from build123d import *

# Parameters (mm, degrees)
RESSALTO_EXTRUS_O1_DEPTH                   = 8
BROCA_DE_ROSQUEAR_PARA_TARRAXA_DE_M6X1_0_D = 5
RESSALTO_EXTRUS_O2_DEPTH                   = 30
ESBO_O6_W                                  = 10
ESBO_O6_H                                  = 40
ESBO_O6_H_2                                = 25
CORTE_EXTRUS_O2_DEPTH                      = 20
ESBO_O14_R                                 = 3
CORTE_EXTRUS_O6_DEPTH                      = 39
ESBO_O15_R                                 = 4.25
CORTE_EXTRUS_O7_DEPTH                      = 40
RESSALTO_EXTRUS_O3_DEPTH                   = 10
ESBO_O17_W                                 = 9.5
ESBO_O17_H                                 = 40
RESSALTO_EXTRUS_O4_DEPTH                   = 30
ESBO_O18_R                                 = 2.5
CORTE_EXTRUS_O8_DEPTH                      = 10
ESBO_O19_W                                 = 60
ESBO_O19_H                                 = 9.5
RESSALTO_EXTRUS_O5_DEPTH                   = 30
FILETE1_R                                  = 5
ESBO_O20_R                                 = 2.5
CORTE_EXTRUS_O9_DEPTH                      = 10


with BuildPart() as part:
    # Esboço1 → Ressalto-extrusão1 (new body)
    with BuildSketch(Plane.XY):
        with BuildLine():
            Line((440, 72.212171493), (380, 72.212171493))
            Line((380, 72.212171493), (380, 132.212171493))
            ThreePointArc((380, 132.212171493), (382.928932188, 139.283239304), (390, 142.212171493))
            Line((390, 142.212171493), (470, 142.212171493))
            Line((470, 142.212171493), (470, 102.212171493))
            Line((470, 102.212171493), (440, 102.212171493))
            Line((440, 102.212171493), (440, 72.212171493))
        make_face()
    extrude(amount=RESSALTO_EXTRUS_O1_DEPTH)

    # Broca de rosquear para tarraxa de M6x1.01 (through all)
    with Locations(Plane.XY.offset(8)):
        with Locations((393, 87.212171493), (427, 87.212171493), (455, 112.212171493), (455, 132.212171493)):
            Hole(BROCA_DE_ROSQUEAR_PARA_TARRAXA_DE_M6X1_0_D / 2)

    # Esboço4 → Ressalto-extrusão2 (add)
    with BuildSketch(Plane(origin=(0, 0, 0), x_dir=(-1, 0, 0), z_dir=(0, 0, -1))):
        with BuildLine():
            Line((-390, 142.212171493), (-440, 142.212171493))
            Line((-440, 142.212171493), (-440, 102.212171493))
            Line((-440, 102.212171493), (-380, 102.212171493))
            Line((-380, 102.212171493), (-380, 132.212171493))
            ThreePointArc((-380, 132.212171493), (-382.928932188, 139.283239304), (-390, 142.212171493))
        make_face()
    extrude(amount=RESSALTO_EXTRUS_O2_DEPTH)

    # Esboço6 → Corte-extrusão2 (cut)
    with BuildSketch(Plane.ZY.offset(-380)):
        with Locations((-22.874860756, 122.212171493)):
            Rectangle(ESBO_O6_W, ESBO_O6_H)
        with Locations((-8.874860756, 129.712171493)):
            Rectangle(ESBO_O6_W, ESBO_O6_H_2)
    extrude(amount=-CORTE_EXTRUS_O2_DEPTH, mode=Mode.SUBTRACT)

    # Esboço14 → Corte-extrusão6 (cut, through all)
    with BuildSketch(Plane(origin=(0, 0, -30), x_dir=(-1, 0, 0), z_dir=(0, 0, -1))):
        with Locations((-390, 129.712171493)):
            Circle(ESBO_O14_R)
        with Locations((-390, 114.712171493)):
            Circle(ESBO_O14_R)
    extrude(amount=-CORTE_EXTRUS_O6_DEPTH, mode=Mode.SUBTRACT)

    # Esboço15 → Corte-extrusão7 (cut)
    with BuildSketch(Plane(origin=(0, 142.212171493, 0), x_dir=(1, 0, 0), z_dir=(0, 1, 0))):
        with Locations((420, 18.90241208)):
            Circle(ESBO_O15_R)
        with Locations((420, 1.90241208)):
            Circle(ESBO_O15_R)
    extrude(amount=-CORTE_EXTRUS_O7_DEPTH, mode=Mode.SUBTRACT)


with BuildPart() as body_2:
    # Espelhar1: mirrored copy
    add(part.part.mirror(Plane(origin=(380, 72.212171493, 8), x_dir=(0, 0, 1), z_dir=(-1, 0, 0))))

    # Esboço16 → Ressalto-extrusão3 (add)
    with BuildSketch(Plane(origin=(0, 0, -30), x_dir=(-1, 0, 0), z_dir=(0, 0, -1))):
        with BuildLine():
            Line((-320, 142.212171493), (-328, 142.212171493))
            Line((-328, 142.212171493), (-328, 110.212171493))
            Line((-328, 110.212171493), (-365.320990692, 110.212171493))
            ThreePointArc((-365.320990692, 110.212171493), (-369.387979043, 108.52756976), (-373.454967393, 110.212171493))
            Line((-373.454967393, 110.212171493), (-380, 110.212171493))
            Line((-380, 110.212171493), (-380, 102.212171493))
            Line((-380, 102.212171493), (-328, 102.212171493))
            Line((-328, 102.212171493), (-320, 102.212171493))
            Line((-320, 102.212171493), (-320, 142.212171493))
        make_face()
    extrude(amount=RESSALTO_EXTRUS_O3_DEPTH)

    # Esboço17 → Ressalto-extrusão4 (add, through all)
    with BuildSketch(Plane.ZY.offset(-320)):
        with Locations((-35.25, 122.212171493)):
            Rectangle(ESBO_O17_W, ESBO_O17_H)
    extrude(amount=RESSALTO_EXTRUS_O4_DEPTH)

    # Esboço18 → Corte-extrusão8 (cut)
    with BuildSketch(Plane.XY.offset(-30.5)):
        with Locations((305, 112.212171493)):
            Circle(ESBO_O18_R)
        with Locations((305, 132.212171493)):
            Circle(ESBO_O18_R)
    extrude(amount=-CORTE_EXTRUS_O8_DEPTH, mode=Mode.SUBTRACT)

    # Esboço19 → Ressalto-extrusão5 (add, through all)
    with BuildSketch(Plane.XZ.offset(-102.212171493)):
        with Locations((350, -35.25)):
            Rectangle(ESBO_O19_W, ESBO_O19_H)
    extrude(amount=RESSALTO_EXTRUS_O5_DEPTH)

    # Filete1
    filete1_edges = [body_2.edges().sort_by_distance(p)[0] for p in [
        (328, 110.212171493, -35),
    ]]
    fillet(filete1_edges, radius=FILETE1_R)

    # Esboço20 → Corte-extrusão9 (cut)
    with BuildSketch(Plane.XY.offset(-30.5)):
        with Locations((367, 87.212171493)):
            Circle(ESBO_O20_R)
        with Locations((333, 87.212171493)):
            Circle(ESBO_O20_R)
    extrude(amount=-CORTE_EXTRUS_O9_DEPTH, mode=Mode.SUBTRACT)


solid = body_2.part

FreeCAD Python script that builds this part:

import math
import FreeCAD as App
import Part
import Sketcher
Q = App.Units.Quantity


def edges_at(feature, points):
    """Names of the edges that pass closest to the given points."""
    edges = feature.Shape.Edges
    near = lambda p: min(range(len(edges)), key=lambda i: edges[i].distToShape(Part.Vertex(*p))[0])
    return sorted({f"Edge{near(p) + 1}" for p in points})


def add_polygon(sketch, points):
    """Adds a closed chain of lines whose ends are joined by coincident constraints."""
    first, n = sketch.GeometryCount, len(points)
    for a, b in zip(points, points[1:] + points[:1]):
        sketch.addGeometry(Part.LineSegment(App.Vector(*a, 0), App.Vector(*b, 0)), False)
    for i in range(n):
        sketch.addConstraint(Sketcher.Constraint("Coincident", first + i, 2, first + (i + 1) % n, 1))

doc = App.newDocument("Part")
body = doc.addObject("PartDesign::Body", "Body")

# Sketch on XY plane
sketch1 = doc.addObject("Sketcher::SketchObject", "Sketch")
body.addObject(sketch1)
sketch1.AttachmentSupport = (doc.XY_Plane, [""])
sketch1.MapMode = "FlatFace"
sketch1.addGeometry([
    Part.LineSegment(App.Vector(380, 72, 0), App.Vector(440, 72, 0)),  # 0
    Part.LineSegment(App.Vector(440, 72, 0), App.Vector(440, 102, 0)),  # 1
    Part.LineSegment(App.Vector(440, 102, 0), App.Vector(470, 102, 0)),  # 2
    Part.LineSegment(App.Vector(470, 102, 0), App.Vector(470, 142, 0)),  # 3
    Part.LineSegment(App.Vector(470, 142, 0), App.Vector(390, 142, 0)),  # 4
    Part.ArcOfCircle(Part.Circle(App.Vector(390, 132, 0), App.Vector(0, 0, 1), 10), math.radians(90), math.radians(180)),  # 5
    Part.LineSegment(App.Vector(380, 132, 0), App.Vector(380, 72, 0)),  # 6
], False)
sketch1.addConstraint([
    Sketcher.Constraint("Coincident", 0, 2, 1, 1),
    Sketcher.Constraint("Coincident", 1, 2, 2, 1),
    Sketcher.Constraint("Coincident", 2, 2, 3, 1),
    Sketcher.Constraint("Coincident", 3, 2, 4, 1),
    Sketcher.Constraint("Tangent", 4, 2, 5, 1),
    Sketcher.Constraint("Tangent", 5, 2, 6, 1),
    Sketcher.Constraint("Coincident", 6, 2, 0, 1),
    Sketcher.Constraint("Horizontal", 0),
    Sketcher.Constraint("Vertical", 1),
    Sketcher.Constraint("Horizontal", 2),
    Sketcher.Constraint("Vertical", 3),
    Sketcher.Constraint("Horizontal", 4),
    Sketcher.Constraint("Vertical", 6),
    Sketcher.Constraint("Equal", 2, 1),
    Sketcher.Constraint("Equal", 0, 6),
    Sketcher.Constraint("Radius", 5, Q("10 mm")),
    Sketcher.Constraint("DistanceX", 0, 1, 0, 2, Q("60 mm")),
    Sketcher.Constraint("DistanceX", 2, 1, 2, 2, Q("30 mm")),
    Sketcher.Constraint("DistanceX", -1, 1, 5, 3, Q("390 mm")),
    Sketcher.Constraint("DistanceY", -1, 1, 5, 3, Q("132.212171 mm")),
])
pad1 = doc.addObject("PartDesign::Pad", "Pad")
body.addObject(pad1)
pad1.Profile = sketch1
pad1.Length = 8

# Sketch on XY plane
sketch2 = doc.addObject("Sketcher::SketchObject", "Sketch001")
body.addObject(sketch2)
sketch2.AttachmentSupport = (doc.XY_Plane, [""])
sketch2.MapMode = "FlatFace"
sketch2.AttachmentOffset = App.Placement(App.Vector(0, 0, 8), App.Rotation())
sketch2.addGeometry([
    Part.Circle(App.Vector(393, 87.2, 0), App.Vector(0, 0, 1), 2.5),
    Part.Circle(App.Vector(427, 87.2, 0), App.Vector(0, 0, 1), 2.5),
    Part.Circle(App.Vector(455, 112.2, 0), App.Vector(0, 0, 1), 2.5),
    Part.Circle(App.Vector(455, 132.2, 0), App.Vector(0, 0, 1), 2.5),
], False)
sketch2.addConstraint([
    Sketcher.Constraint("Equal", 0, 1),
    Sketcher.Constraint("Equal", 1, 2),
    Sketcher.Constraint("Equal", 2, 3),
    Sketcher.Constraint("Horizontal", 0, 3, 1, 3),
    Sketcher.Constraint("Vertical", 2, 3, 3, 3),
    Sketcher.Constraint("Diameter", 0, Q("5 mm")),
    Sketcher.Constraint("DistanceX", -1, 1, 0, 3, Q("393 mm")),
    Sketcher.Constraint("DistanceX", -1, 1, 1, 3, Q("427 mm")),
    Sketcher.Constraint("DistanceX", -1, 1, 2, 3, Q("455 mm")),
    Sketcher.Constraint("DistanceY", 1, 3, 2, 3, Q("25 mm")),
    Sketcher.Constraint("DistanceY", 2, 3, 3, 3, Q("20 mm")),
    Sketcher.Constraint("DistanceY", -1, 1, 0, 3, Q("87.212171 mm")),
])
doc.recompute()
hole = doc.addObject("PartDesign::Hole", "Hole")
body.addObject(hole)
hole.Profile = sketch2
hole.ThreadType = "None"
hole.Diameter = 5
hole.DepthType = "ThroughAll"

# Sketch on XY plane
sketch3 = doc.addObject("Sketcher::SketchObject", "Sketch002")
body.addObject(sketch3)
sketch3.AttachmentSupport = (doc.XY_Plane, [""])
sketch3.MapMode = "FlatFace"
sketch3.addGeometry([
    Part.LineSegment(App.Vector(390, 142, 0), App.Vector(440, 142, 0)),  # 0
    Part.LineSegment(App.Vector(440, 142, 0), App.Vector(440, 102, 0)),  # 1
    Part.LineSegment(App.Vector(440, 102, 0), App.Vector(380, 102, 0)),  # 2
    Part.LineSegment(App.Vector(380, 102, 0), App.Vector(380, 132, 0)),  # 3
    Part.ArcOfCircle(Part.Circle(App.Vector(390, 132, 0), App.Vector(0, 0, 1), 10), math.radians(90), math.radians(180)),  # 4
], False)
sketch3.addConstraint([
    Sketcher.Constraint("Coincident", 0, 2, 1, 1),
    Sketcher.Constraint("Coincident", 1, 2, 2, 1),
    Sketcher.Constraint("Coincident", 2, 2, 3, 1),
    Sketcher.Constraint("Tangent", 3, 2, 4, 2),
    Sketcher.Constraint("Tangent", 4, 1, 0, 1),
    Sketcher.Constraint("Horizontal", 0),
    Sketcher.Constraint("Vertical", 1),
    Sketcher.Constraint("Horizontal", 2),
    Sketcher.Constraint("Vertical", 3),
    Sketcher.Constraint("Radius", 4, Q("10 mm")),
    Sketcher.Constraint("DistanceX", 0, 1, 0, 2, Q("50 mm")),
    Sketcher.Constraint("DistanceY", 1, 2, 1, 1, Q("40 mm")),
    Sketcher.Constraint("DistanceX", -1, 1, 4, 3, Q("390 mm")),
    Sketcher.Constraint("DistanceY", -1, 1, 4, 3, Q("132.212171 mm")),
])
pad2 = doc.addObject("PartDesign::Pad", "Pad001")
body.addObject(pad2)
pad2.Profile = sketch3
pad2.Length = 30
pad2.Reversed = True

# Sketch on YZ plane
sketch4 = doc.addObject("Sketcher::SketchObject", "Sketch003")
body.addObject(sketch4)
sketch4.AttachmentSupport = (doc.YZ_Plane, [""])
sketch4.MapMode = "FlatFace"
sketch4.AttachmentOffset = App.Placement(App.Vector(0, 0, 380), App.Rotation())
add_polygon(sketch4, [(142, -28), (102, -28), (102, -18), (142, -18)])  # lines 0-3
add_polygon(sketch4, [(142, -14), (117, -14), (117, -4), (142, -4)])  # lines 4-7
sketch4.addConstraint([
    Sketcher.Constraint("Horizontal", 0),
    Sketcher.Constraint("Vertical", 1),
    Sketcher.Constraint("Horizontal", 2),
    Sketcher.Constraint("Vertical", 3),
    Sketcher.Constraint("Horizontal", 4),
    Sketcher.Constraint("Vertical", 5),
    Sketcher.Constraint("Horizontal", 6),
    Sketcher.Constraint("Vertical", 7),
    Sketcher.Constraint("Vertical", 3, 2, 6, 2),
    Sketcher.Constraint("Equal", 3, 5),
    Sketcher.Constraint("DistanceX", 0, 2, 0, 1, Q("40 mm")),
    Sketcher.Constraint("DistanceX", 4, 2, 4, 1, Q("25 mm")),
    Sketcher.Constraint("DistanceY", 1, 1, 1, 2, Q("10 mm")),
    Sketcher.Constraint("DistanceY", 1, 2, 4, 2, Q("4 mm")),
    Sketcher.Constraint("DistanceX", -1, 1, 0, 2, Q("102.212171 mm")),
    Sketcher.Constraint("DistanceY", 0, 2, -1, 1, Q("27.874861 mm")),
])
pocket1 = doc.addObject("PartDesign::Pocket", "Pocket")
body.addObject(pocket1)
pocket1.Profile = sketch4
pocket1.Length = 20
pocket1.Reversed = True

# Sketch on XY plane
sketch5 = doc.addObject("Sketcher::SketchObject", "Sketch004")
body.addObject(sketch5)
sketch5.AttachmentSupport = (doc.XY_Plane, [""])
sketch5.MapMode = "FlatFace"
sketch5.AttachmentOffset = App.Placement(App.Vector(0, 0, -30), App.Rotation())
sketch5.addGeometry([
    Part.Circle(App.Vector(390, 129.7, 0), App.Vector(0, 0, 1), 3),
    Part.Circle(App.Vector(390, 114.7, 0), App.Vector(0, 0, 1), 3),
], False)
sketch5.addConstraint([
    Sketcher.Constraint("Equal", 0, 1),
    Sketcher.Constraint("Vertical", 0, 3, 1, 3),
    Sketcher.Constraint("Diameter", 0, Q("6 mm")),
    Sketcher.Constraint("DistanceX", -1, 1, 0, 3, Q("390 mm")),
    Sketcher.Constraint("DistanceY", 1, 3, 0, 3, Q("15 mm")),
    Sketcher.Constraint("DistanceY", -1, 1, 0, 3, Q("129.712171 mm")),
])
pocket2 = doc.addObject("PartDesign::Pocket", "Pocket001")
body.addObject(pocket2)
pocket2.Profile = sketch5
pocket2.Type = "ThroughAll"
pocket2.Reversed = True

# Sketch on XZ plane
sketch6 = doc.addObject("Sketcher::SketchObject", "Sketch005")
body.addObject(sketch6)
sketch6.AttachmentSupport = (doc.XZ_Plane, [""])
sketch6.MapMode = "FlatFace"
sketch6.AttachmentOffset = App.Placement(App.Vector(0, 0, -142.212171), App.Rotation())
sketch6.addGeometry([
    Part.Circle(App.Vector(420, -18.9, 0), App.Vector(0, 0, 1), 4.2),
    Part.Circle(App.Vector(420, -1.9, 0), App.Vector(0, 0, 1), 4.2),
], False)
sketch6.addConstraint([
    Sketcher.Constraint("Equal", 0, 1),
    Sketcher.Constraint("Vertical", 0, 3, 1, 3),
    Sketcher.Constraint("Diameter", 0, Q("8.5 mm")),
    Sketcher.Constraint("DistanceX", -1, 1, 0, 3, Q("420 mm")),
    Sketcher.Constraint("DistanceY", 0, 3, 1, 3, Q("17 mm")),
    Sketcher.Constraint("DistanceY", 0, 3, -1, 1, Q("18.902412 mm")),
])
pocket3 = doc.addObject("PartDesign::Pocket", "Pocket002")
body.addObject(pocket3)
pocket3.Profile = sketch6
pocket3.Length = 40
pocket3.Reversed = True
body2 = doc.addObject("PartDesign::Body", "Body001")
doc.recompute()

mirroring = doc.addObject("Part::Mirroring", "Mirroring")
mirroring.Source = body
mirroring.Base = App.Vector(380, 72.212171, 8)
mirroring.Normal = App.Vector(-1, 0, 0)
body2.BaseFeature = mirroring
doc.recompute()

# Sketch on XY plane
sketch7 = doc.addObject("Sketcher::SketchObject", "Sketch006")
body2.addObject(sketch7)
sketch7.AttachmentSupport = (doc.getObject("XY_Plane001"), [""])
sketch7.MapMode = "FlatFace"
sketch7.AttachmentOffset = App.Placement(App.Vector(0, 0, -30), App.Rotation())
sketch7.addGeometry([
    Part.LineSegment(App.Vector(320, 142, 0), App.Vector(328, 142, 0)),  # 0
    Part.LineSegment(App.Vector(328, 142, 0), App.Vector(328, 110, 0)),  # 1
    Part.LineSegment(App.Vector(328, 110, 0), App.Vector(365, 110, 0)),  # 2
    Part.ArcOfCircle(Part.Circle(App.Vector(369, 114, 0), App.Vector(0, 0, 1), 6), math.radians(-135), math.radians(-45)),  # 3
    Part.LineSegment(App.Vector(373, 110, 0), App.Vector(380, 110, 0)),  # 4
    Part.LineSegment(App.Vector(380, 110, 0), App.Vector(380, 102, 0)),  # 5
    Part.LineSegment(App.Vector(380, 102, 0), App.Vector(320, 102, 0)),  # 6
    Part.LineSegment(App.Vector(320, 102, 0), App.Vector(320, 142, 0)),  # 7
], False)
sketch7.addConstraint([
    Sketcher.Constraint("Coincident", 0, 2, 1, 1),
    Sketcher.Constraint("Coincident", 1, 2, 2, 1),
    Sketcher.Constraint("Coincident", 2, 2, 3, 1),
    Sketcher.Constraint("Coincident", 3, 2, 4, 1),
    Sketcher.Constraint("Coincident", 4, 2, 5, 1),
    Sketcher.Constraint("Coincident", 5, 2, 6, 1),
    Sketcher.Constraint("Coincident", 6, 2, 7, 1),
    Sketcher.Constraint("Coincident", 7, 2, 0, 1),
    Sketcher.Constraint("Horizontal", 0),
    Sketcher.Constraint("Vertical", 1),
    Sketcher.Constraint("Horizontal", 2),
    Sketcher.Constraint("Horizontal", 4),
    Sketcher.Constraint("Vertical", 5),
    Sketcher.Constraint("Horizontal", 6),
    Sketcher.Constraint("Vertical", 7),
    Sketcher.Constraint("Horizontal", 2, 2, 3, 2),
    Sketcher.Constraint("Equal", 0, 5),
    Sketcher.Constraint("DistanceX", 0, 1, 0, 2, Q("8 mm")),
    Sketcher.Constraint("DistanceX", 6, 2, 6, 1, Q("60 mm")),
    Sketcher.Constraint("DistanceY", 1, 2, 1, 1, Q("32 mm")),
    Sketcher.Constraint("DistanceX", -1, 1, 0, 2, Q("328 mm")),
    Sketcher.Constraint("Radius", 3, Q("5.75159 mm")),
    Sketcher.Constraint("DistanceX", 2, 1, 2, 2, Q("37.320991 mm")),
    Sketcher.Constraint("DistanceX", 4, 1, 4, 2, Q("6.545033 mm")),
    Sketcher.Constraint("DistanceY", -1, 1, 3, 3, Q("114.27916 mm")),
])
pad3 = doc.addObject("PartDesign::Pad", "Pad002")
body2.addObject(pad3)
pad3.Profile = sketch7
pad3.Length = 10
pad3.Reversed = True

# Sketch on YZ plane
sketch8 = doc.addObject("Sketcher::SketchObject", "Sketch007")
body2.addObject(sketch8)
sketch8.AttachmentSupport = (doc.getObject("YZ_Plane001"), [""])
sketch8.MapMode = "FlatFace"
sketch8.AttachmentOffset = App.Placement(App.Vector(0, 0, 320), App.Rotation())
add_polygon(sketch8, [(142, -40), (102, -40), (102, -30), (142, -30)])  # lines 0-3
sketch8.addConstraint([
    Sketcher.Constraint("Horizontal", 0),
    Sketcher.Constraint("Vertical", 1),
    Sketcher.Constraint("Horizontal", 2),
    Sketcher.Constraint("Vertical", 3),
    Sketcher.Constraint("DistanceX", 0, 2, 0, 1, Q("40 mm")),
    Sketcher.Constraint("DistanceY", 1, 1, 1, 2, Q("9.5 mm")),
    Sketcher.Constraint("DistanceY", 0, 2, -1, 1, Q("40 mm")),
    Sketcher.Constraint("DistanceX", -1, 1, 0, 2, Q("102.212171 mm")),
])
pad4 = doc.addObject("PartDesign::Pad", "Pad003")
body2.addObject(pad4)
pad4.Profile = sketch8
pad4.Length = 30
pad4.Reversed = True

# Sketch on XY plane
sketch9 = doc.addObject("Sketcher::SketchObject", "Sketch008")
body2.addObject(sketch9)
sketch9.AttachmentSupport = (doc.getObject("XY_Plane001"), [""])
sketch9.MapMode = "FlatFace"
sketch9.AttachmentOffset = App.Placement(App.Vector(0, 0, -30.5), App.Rotation())
sketch9.addGeometry([
    Part.Circle(App.Vector(305, 112.2, 0), App.Vector(0, 0, 1), 2.5),
    Part.Circle(App.Vector(305, 132.2, 0), App.Vector(0, 0, 1), 2.5),
], False)
sketch9.addConstraint([
    Sketcher.Constraint("Equal", 0, 1),
    Sketcher.Constraint("Vertical", 0, 3, 1, 3),
    Sketcher.Constraint("Diameter", 0, Q("5 mm")),
    Sketcher.Constraint("DistanceX", -1, 1, 0, 3, Q("305 mm")),
    Sketcher.Constraint("DistanceY", 0, 3, 1, 3, Q("20 mm")),
    Sketcher.Constraint("DistanceY", -1, 1, 0, 3, Q("112.212171 mm")),
])
pocket4 = doc.addObject("PartDesign::Pocket", "Pocket003")
body2.addObject(pocket4)
pocket4.Profile = sketch9
pocket4.Length = 10

# Sketch on XZ plane
sketch10 = doc.addObject("Sketcher::SketchObject", "Sketch009")
body2.addObject(sketch10)
sketch10.AttachmentSupport = (doc.getObject("XZ_Plane001"), [""])
sketch10.MapMode = "FlatFace"
sketch10.AttachmentOffset = App.Placement(App.Vector(0, 0, -102.212171), App.Rotation())
add_polygon(sketch10, [(320, -30), (320, -40), (380, -40), (380, -30)])  # lines 0-3
sketch10.addConstraint([
    Sketcher.Constraint("Vertical", 0),
    Sketcher.Constraint("Horizontal", 1),
    Sketcher.Constraint("Vertical", 2),
    Sketcher.Constraint("Horizontal", 3),
    Sketcher.Constraint("DistanceX", 1, 1, 1, 2, Q("60 mm")),
    Sketcher.Constraint("DistanceY", 0, 2, 0, 1, Q("9.5 mm")),
    Sketcher.Constraint("DistanceX", -1, 1, 0, 2, Q("320 mm")),
    Sketcher.Constraint("DistanceY", 0, 2, -1, 1, Q("40 mm")),
])
pad5 = doc.addObject("PartDesign::Pad", "Pad004")
body2.addObject(pad5)
pad5.Profile = sketch10
pad5.Length = 30
doc.recompute()

fillet = doc.addObject("PartDesign::Fillet", "Fillet")
body2.addObject(fillet)
fillet.Base = (pad5, edges_at(pad5, [(328, 110.212, -35)]))
fillet.Radius = 5

# Sketch on XY plane
sketch11 = doc.addObject("Sketcher::SketchObject", "Sketch010")
body2.addObject(sketch11)
sketch11.AttachmentSupport = (doc.getObject("XY_Plane001"), [""])
sketch11.MapMode = "FlatFace"
sketch11.AttachmentOffset = App.Placement(App.Vector(0, 0, -30.5), App.Rotation())
sketch11.addGeometry([
    Part.Circle(App.Vector(367, 87.2, 0), App.Vector(0, 0, 1), 2.5),
    Part.Circle(App.Vector(333, 87.2, 0), App.Vector(0, 0, 1), 2.5),
], False)
sketch11.addConstraint([
    Sketcher.Constraint("Equal", 0, 1),
    Sketcher.Constraint("Horizontal", 0, 3, 1, 3),
    Sketcher.Constraint("Diameter", 0, Q("5 mm")),
    Sketcher.Constraint("DistanceX", -1, 1, 0, 3, Q("367 mm")),
    Sketcher.Constraint("DistanceX", -1, 1, 1, 3, Q("333 mm")),
    Sketcher.Constraint("DistanceY", -1, 1, 0, 3, Q("87.212171 mm")),
])
pocket5 = doc.addObject("PartDesign::Pocket", "Pocket004")
body2.addObject(pocket5)
pocket5.Profile = sketch11
pocket5.Length = 10
body.Visibility = False
mirroring.Visibility = False

doc.recompute()
